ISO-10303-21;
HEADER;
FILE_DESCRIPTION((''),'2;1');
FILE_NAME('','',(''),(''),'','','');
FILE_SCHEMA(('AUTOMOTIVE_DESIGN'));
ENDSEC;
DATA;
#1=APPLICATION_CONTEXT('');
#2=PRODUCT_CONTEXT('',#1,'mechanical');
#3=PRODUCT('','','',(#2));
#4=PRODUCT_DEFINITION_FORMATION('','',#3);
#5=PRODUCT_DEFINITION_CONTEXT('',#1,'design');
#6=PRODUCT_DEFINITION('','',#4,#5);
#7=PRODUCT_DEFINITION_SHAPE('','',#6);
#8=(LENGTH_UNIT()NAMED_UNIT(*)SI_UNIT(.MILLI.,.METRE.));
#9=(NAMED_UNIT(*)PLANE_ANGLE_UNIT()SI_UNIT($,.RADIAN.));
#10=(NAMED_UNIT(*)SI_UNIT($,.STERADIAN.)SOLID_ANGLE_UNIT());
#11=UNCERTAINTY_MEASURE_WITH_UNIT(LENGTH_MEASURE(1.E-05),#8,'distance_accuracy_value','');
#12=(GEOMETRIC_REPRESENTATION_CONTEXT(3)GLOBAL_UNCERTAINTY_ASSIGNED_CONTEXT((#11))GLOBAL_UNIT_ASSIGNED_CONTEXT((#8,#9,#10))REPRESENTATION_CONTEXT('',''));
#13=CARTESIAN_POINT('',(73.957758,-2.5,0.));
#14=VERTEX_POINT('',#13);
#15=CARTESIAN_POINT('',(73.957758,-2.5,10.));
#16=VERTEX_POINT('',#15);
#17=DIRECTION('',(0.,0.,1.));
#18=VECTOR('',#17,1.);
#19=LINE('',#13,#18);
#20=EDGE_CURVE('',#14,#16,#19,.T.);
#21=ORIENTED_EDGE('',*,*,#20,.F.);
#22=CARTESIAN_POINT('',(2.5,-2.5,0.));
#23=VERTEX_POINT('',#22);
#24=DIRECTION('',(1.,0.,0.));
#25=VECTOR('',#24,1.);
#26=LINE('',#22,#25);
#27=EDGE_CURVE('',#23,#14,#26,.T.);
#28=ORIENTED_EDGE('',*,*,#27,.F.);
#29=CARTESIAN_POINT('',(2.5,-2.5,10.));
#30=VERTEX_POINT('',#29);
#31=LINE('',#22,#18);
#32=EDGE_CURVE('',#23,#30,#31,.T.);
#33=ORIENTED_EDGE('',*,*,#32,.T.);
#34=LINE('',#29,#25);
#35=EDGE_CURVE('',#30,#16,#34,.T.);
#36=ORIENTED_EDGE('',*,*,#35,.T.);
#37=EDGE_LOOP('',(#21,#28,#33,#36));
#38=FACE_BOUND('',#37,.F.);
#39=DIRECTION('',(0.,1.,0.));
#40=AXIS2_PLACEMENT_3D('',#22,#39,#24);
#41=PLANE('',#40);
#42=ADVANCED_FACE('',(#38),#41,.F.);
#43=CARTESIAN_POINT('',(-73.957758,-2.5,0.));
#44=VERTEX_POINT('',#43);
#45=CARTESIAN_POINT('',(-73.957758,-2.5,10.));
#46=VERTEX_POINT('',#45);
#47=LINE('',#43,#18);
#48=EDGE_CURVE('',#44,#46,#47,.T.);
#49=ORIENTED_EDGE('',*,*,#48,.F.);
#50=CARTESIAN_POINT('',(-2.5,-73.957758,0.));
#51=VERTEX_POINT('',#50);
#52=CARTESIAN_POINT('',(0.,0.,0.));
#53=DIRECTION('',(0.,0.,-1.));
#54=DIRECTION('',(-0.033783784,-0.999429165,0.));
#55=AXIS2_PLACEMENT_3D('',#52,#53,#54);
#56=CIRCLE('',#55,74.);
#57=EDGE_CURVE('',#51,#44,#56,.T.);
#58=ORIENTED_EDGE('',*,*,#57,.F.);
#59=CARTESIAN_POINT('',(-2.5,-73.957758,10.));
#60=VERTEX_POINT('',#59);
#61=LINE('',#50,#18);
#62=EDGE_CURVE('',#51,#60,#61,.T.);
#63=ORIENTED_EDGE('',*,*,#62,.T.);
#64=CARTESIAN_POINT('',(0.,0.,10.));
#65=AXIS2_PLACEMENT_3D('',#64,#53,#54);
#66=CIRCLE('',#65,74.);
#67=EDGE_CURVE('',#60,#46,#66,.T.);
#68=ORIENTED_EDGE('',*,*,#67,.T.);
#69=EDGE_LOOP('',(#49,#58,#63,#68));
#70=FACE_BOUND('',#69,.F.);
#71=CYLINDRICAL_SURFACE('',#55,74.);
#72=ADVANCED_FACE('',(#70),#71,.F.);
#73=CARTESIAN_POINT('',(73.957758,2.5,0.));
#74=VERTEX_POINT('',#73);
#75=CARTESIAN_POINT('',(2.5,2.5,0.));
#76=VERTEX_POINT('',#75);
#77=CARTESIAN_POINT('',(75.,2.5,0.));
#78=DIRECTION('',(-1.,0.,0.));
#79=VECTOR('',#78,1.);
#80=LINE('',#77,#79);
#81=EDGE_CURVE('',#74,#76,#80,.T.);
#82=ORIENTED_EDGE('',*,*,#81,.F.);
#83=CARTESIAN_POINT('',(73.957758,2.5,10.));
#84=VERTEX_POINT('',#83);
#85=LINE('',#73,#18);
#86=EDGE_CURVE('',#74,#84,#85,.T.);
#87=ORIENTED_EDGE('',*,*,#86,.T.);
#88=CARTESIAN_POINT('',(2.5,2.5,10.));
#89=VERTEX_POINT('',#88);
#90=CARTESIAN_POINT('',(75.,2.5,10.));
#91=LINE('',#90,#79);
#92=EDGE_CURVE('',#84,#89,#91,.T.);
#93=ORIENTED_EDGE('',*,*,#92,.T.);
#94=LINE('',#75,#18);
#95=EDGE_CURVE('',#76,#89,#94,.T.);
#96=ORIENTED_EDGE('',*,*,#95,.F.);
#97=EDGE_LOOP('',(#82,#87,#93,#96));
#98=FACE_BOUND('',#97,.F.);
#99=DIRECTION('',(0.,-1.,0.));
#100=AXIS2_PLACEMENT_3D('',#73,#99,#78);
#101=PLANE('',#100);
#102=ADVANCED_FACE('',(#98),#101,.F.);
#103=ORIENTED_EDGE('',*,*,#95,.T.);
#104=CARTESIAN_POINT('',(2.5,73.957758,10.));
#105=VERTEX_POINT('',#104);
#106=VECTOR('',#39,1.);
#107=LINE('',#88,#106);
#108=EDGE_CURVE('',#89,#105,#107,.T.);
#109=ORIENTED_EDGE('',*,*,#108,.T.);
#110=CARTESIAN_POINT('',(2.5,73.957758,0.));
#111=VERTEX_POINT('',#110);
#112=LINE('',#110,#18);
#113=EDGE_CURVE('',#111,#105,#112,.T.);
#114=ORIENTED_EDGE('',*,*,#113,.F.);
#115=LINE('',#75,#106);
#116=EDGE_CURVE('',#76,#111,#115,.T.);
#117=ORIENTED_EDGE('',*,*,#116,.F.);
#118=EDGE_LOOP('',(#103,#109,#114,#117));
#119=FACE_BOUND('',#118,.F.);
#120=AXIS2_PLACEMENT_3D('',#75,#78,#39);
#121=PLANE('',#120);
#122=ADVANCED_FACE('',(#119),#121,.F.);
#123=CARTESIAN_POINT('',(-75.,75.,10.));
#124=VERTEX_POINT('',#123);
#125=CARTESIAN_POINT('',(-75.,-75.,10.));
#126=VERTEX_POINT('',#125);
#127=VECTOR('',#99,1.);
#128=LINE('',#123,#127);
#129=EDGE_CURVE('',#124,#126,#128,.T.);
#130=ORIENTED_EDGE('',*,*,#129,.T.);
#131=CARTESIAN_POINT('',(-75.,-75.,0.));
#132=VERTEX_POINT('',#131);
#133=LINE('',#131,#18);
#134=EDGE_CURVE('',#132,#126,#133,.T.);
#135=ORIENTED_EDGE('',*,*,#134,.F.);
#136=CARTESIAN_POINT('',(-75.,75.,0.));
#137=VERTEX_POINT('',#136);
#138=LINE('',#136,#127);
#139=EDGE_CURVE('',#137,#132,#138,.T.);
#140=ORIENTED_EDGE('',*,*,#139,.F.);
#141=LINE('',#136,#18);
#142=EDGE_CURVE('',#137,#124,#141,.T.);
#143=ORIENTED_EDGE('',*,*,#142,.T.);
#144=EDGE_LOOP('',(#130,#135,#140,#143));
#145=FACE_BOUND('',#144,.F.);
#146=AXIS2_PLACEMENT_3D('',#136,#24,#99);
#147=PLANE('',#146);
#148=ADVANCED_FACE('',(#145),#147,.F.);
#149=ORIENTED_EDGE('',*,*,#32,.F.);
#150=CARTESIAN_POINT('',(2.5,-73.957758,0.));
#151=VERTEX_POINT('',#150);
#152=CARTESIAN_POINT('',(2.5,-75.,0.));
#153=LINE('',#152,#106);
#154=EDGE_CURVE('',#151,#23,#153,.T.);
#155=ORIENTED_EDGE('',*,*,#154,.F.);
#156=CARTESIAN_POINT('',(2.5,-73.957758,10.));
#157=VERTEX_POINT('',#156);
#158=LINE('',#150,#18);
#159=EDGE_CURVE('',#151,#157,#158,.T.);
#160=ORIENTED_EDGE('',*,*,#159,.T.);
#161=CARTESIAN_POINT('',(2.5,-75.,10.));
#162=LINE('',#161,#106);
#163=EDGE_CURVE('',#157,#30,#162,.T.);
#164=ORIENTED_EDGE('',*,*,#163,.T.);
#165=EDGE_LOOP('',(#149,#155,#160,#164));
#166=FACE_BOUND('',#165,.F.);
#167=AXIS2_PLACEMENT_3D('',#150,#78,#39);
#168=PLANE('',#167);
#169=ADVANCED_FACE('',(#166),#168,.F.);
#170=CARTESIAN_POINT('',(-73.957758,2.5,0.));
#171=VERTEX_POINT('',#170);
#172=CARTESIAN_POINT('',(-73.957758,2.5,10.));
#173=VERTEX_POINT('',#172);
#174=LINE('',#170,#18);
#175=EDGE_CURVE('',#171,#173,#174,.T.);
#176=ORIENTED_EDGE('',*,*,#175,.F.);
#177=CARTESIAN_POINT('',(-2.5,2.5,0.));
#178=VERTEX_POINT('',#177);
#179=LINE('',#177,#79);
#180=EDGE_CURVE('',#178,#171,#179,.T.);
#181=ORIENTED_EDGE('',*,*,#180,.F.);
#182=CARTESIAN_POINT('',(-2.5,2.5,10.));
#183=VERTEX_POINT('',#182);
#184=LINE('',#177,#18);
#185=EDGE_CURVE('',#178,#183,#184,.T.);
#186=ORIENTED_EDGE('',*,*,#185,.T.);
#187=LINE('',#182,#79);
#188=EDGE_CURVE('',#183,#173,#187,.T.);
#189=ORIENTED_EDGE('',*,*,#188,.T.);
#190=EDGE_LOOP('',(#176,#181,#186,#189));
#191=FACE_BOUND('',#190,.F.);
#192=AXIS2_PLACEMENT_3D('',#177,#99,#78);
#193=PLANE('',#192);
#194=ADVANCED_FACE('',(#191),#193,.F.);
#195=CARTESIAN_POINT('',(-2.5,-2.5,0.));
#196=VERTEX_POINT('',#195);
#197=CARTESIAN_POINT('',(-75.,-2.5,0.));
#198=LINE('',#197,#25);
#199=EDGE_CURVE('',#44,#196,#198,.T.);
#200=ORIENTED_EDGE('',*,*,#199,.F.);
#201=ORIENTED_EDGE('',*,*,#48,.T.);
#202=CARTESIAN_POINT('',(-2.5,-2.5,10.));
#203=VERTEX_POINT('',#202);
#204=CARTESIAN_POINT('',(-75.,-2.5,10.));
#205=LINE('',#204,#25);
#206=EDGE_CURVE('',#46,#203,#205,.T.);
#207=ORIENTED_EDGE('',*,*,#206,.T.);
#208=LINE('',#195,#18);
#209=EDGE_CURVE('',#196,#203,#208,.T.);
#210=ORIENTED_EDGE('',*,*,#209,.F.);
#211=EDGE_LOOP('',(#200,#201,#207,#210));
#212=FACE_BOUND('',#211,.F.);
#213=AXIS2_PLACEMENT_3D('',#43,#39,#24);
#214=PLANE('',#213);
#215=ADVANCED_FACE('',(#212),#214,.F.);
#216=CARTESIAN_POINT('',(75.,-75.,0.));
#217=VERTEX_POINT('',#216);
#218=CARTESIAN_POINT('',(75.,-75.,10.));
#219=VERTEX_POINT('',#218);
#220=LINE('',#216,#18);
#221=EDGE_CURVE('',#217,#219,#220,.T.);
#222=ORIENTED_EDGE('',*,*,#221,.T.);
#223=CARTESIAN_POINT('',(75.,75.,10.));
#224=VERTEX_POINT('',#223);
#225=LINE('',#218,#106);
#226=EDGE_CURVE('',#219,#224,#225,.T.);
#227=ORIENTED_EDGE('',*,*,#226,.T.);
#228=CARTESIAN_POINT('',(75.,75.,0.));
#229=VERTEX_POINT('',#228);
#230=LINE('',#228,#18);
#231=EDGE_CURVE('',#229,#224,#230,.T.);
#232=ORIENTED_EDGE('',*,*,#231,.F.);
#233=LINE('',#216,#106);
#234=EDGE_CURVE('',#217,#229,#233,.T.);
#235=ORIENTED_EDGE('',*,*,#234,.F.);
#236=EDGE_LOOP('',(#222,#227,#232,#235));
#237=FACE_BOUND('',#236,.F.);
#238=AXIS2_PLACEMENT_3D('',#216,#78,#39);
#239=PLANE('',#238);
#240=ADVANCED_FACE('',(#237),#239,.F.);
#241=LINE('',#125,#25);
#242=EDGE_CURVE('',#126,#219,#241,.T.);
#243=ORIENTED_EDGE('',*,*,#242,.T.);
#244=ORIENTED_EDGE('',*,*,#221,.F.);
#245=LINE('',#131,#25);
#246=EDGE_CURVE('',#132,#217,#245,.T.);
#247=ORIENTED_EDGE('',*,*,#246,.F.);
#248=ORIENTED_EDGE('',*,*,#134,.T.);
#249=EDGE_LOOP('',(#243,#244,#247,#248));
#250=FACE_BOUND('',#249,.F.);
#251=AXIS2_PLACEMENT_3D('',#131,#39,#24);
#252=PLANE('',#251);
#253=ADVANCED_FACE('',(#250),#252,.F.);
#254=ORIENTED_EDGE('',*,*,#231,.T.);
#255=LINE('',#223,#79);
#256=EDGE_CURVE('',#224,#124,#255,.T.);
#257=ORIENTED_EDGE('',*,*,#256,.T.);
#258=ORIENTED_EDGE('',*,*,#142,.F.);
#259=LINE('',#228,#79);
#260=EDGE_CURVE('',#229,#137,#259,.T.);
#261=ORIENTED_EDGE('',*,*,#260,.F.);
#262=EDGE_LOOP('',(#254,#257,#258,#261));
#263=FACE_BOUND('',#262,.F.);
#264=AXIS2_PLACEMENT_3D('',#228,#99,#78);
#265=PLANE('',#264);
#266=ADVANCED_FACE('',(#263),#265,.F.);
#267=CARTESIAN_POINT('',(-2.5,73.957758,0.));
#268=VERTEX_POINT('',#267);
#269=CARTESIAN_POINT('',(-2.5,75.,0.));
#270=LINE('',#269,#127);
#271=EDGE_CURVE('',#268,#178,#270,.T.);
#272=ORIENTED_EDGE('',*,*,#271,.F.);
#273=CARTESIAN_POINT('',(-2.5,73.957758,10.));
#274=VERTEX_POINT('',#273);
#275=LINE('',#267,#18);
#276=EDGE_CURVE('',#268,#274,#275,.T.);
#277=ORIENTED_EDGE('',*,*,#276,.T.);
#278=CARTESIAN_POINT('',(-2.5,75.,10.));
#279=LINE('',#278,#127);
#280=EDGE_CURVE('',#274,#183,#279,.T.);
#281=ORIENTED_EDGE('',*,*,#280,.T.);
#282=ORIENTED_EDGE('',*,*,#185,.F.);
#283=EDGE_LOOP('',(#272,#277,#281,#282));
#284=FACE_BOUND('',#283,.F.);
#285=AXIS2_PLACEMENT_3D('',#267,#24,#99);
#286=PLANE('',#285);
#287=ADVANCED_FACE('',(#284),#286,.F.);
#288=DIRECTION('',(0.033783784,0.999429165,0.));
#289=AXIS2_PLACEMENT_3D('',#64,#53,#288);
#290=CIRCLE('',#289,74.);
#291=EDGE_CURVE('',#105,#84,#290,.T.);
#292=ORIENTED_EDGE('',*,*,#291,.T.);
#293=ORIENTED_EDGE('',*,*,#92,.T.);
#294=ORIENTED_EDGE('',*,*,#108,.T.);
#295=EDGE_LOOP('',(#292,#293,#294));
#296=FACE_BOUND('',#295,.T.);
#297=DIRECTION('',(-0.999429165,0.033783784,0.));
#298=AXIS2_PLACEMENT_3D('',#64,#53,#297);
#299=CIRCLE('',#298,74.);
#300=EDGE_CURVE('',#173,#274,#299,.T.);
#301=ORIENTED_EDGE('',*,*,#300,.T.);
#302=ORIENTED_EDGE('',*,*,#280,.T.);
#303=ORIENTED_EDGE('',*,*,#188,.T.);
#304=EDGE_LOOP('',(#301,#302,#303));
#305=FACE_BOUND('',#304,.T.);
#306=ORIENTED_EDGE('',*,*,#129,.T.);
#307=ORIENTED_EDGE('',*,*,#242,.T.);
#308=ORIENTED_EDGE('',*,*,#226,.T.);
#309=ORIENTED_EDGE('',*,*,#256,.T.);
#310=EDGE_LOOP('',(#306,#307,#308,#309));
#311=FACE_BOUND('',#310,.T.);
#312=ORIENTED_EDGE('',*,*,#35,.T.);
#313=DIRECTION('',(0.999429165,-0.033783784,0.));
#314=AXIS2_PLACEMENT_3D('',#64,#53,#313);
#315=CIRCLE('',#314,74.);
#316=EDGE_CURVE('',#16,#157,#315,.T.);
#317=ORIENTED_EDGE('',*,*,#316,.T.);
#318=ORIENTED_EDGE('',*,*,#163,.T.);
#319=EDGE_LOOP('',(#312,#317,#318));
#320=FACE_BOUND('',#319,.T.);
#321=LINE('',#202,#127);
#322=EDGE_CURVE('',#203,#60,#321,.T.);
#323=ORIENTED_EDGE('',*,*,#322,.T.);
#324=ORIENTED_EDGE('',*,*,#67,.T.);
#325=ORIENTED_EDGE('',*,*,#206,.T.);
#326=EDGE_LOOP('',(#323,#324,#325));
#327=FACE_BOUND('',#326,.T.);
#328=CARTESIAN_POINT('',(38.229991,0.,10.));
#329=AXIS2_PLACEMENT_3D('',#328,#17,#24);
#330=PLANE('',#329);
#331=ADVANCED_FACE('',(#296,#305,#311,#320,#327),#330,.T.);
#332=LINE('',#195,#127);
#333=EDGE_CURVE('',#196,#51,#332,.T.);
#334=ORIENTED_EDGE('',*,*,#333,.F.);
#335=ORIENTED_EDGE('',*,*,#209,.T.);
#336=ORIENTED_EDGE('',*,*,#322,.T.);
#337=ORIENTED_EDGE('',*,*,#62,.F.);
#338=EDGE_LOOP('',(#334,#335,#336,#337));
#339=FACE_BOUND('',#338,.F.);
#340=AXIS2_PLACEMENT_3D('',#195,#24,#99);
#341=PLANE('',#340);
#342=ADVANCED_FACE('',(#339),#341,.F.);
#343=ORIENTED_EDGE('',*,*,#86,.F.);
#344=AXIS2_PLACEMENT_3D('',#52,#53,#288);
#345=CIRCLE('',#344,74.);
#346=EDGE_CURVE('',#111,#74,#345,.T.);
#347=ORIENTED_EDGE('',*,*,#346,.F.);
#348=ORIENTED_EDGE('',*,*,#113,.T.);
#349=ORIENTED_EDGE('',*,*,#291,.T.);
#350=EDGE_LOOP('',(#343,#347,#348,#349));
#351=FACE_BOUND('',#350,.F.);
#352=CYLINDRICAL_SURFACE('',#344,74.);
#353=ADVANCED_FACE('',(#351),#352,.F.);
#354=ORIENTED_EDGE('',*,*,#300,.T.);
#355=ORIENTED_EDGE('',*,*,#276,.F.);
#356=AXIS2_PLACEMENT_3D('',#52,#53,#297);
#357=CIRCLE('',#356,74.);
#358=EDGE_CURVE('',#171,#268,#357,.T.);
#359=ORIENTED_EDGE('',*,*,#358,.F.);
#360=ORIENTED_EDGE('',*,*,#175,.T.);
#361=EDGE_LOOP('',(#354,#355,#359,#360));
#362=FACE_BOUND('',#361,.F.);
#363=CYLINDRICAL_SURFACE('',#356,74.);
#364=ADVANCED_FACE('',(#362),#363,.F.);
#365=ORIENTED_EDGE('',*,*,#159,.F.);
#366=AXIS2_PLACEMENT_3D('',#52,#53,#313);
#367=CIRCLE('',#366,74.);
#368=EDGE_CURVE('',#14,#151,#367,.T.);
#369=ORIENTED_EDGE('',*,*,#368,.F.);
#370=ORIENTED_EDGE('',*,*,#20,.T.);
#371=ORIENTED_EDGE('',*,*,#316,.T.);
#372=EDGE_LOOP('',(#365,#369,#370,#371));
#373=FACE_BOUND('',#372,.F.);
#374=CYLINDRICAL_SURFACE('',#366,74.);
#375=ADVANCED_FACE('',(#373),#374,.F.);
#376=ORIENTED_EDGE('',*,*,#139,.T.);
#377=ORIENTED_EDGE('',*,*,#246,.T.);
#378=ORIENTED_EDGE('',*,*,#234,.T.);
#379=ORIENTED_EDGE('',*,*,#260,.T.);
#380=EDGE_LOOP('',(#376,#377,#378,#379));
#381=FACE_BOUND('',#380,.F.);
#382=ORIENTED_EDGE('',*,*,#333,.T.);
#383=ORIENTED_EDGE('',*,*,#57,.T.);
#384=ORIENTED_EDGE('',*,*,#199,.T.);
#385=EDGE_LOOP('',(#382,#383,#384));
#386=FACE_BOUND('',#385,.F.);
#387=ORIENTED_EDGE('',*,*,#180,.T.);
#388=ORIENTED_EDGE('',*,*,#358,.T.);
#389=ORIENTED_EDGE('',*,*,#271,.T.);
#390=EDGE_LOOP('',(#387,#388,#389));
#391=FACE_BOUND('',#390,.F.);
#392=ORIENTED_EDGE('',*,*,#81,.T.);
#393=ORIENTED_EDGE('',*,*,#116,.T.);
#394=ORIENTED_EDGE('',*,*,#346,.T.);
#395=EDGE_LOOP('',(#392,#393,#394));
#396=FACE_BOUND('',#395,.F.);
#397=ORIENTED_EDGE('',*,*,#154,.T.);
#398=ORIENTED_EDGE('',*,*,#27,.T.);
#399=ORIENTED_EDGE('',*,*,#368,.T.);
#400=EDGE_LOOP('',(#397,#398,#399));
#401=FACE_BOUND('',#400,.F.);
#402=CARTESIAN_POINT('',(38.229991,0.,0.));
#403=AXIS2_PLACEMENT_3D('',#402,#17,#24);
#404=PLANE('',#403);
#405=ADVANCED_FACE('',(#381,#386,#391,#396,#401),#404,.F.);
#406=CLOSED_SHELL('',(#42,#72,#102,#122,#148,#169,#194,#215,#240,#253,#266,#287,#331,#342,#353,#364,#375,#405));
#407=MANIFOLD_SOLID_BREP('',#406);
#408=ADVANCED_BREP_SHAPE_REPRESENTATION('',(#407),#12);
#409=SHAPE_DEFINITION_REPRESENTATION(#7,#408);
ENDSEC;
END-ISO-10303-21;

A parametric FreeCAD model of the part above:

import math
import FreeCAD as App
import Part
import Sketcher
from FreeCAD import Vector

doc = App.newDocument("Part")
body = doc.addObject("PartDesign::Body", "Body")

sketch1 = body.newObject("Sketcher::SketchObject", "Sketch")
sketch1.AttachmentSupport = (doc.getObject("XY_Plane"), [""])
sketch1.MapMode = "FlatFace"
sketch1.addGeometry(Part.LineSegment(Vector(-75, 75, 0), Vector(-75, -75, 0)), False)
sketch1.addGeometry(Part.LineSegment(Vector(-75, -75, 0), Vector(75, -75, 0)), False)
sketch1.addGeometry(Part.LineSegment(Vector(75, -75, 0), Vector(75, 75, 0)), False)
sketch1.addGeometry(Part.LineSegment(Vector(75, 75, 0), Vector(-75, 75, 0)), False)
sketch1.addGeometry(Part.LineSegment(Vector(2, -2, 0), Vector(74, -2, 0)), False)
sketch1.addGeometry(Part.ArcOfCircle(Part.Circle(Vector(0, 0, 0), Vector(0, 0, 1), 74), math.radians(-88), math.radians(-2)), False)
sketch1.addGeometry(Part.LineSegment(Vector(2, -74, 0), Vector(2, -2, 0)), False)
sketch1.addGeometry(Part.LineSegment(Vector(74, 2, 0), Vector(2, 2, 0)), False)
sketch1.addGeometry(Part.LineSegment(Vector(2, 2, 0), Vector(2, 74, 0)), False)
sketch1.addGeometry(Part.ArcOfCircle(Part.Circle(Vector(0, 0, 0), Vector(0, 0, 1), 74), math.radians(2), math.radians(88)), False)
sketch1.addGeometry(Part.LineSegment(Vector(-2, 74, 0), Vector(-2, 2, 0)), False)
sketch1.addGeometry(Part.LineSegment(Vector(-2, 2, 0), Vector(-74, 2, 0)), False)
sketch1.addGeometry(Part.ArcOfCircle(Part.Circle(Vector(0, 0, 0), Vector(0, 0, 1), 74), math.radians(92), math.radians(178)), False)
sketch1.addGeometry(Part.LineSegment(Vector(-74, -2, 0), Vector(-2, -2, 0)), False)
sketch1.addGeometry(Part.LineSegment(Vector(-2, -2, 0), Vector(-2, -74, 0)), False)
sketch1.addGeometry(Part.ArcOfCircle(Part.Circle(Vector(0, 0, 0), Vector(0, 0, 1), 74), math.radians(-178), math.radians(-92)), False)
sketch1.addConstraint(Sketcher.Constraint("Coincident", 0, 2, 1, 1))
sketch1.addConstraint(Sketcher.Constraint("Coincident", 1, 2, 2, 1))
sketch1.addConstraint(Sketcher.Constraint("Coincident", 2, 2, 3, 1))
sketch1.addConstraint(Sketcher.Constraint("Coincident", 3, 2, 0, 1))
sketch1.addConstraint(Sketcher.Constraint("Coincident", 4, 2, 5, 2))
sketch1.addConstraint(Sketcher.Constraint("Coincident", 5, 1, 6, 1))
sketch1.addConstraint(Sketcher.Constraint("Coincident", 6, 2, 4, 1))
sketch1.addConstraint(Sketcher.Constraint("Coincident", 7, 2, 8, 1))
sketch1.addConstraint(Sketcher.Constraint("Coincident", 8, 2, 9, 2))
sketch1.addConstraint(Sketcher.Constraint("Coincident", 9, 1, 7, 1))
sketch1.addConstraint(Sketcher.Constraint("Coincident", 10, 2, 11, 1))
sketch1.addConstraint(Sketcher.Constraint("Coincident", 11, 2, 12, 2))
sketch1.addConstraint(Sketcher.Constraint("Coincident", 12, 1, 10, 1))
sketch1.addConstraint(Sketcher.Constraint("Coincident", 13, 2, 14, 1))
sketch1.addConstraint(Sketcher.Constraint("Coincident", 14, 2, 15, 2))
sketch1.addConstraint(Sketcher.Constraint("Coincident", 15, 1, 13, 1))
sketch1.addConstraint(Sketcher.Constraint("Vertical", 0))
sketch1.addConstraint(Sketcher.Constraint("Horizontal", 1))
sketch1.addConstraint(Sketcher.Constraint("Vertical", 2))
sketch1.addConstraint(Sketcher.Constraint("Horizontal", 3))
sketch1.addConstraint(Sketcher.Constraint("Horizontal", 4))
sketch1.addConstraint(Sketcher.Constraint("Vertical", 6))
sketch1.addConstraint(Sketcher.Constraint("Horizontal", 7))
sketch1.addConstraint(Sketcher.Constraint("Vertical", 8))
sketch1.addConstraint(Sketcher.Constraint("Vertical", 10))
sketch1.addConstraint(Sketcher.Constraint("Horizontal", 11))
sketch1.addConstraint(Sketcher.Constraint("Horizontal", 13))
sketch1.addConstraint(Sketcher.Constraint("Vertical", 14))
sketch1.addConstraint(Sketcher.Constraint("Coincident", 5, 3, -1, 1))
sketch1.addConstraint(Sketcher.Constraint("Coincident", 9, 3, -1, 1))
sketch1.addConstraint(Sketcher.Constraint("Coincident", 12, 3, -1, 1))
sketch1.addConstraint(Sketcher.Constraint("Coincident", 15, 3, -1, 1))
sketch1.addConstraint(Sketcher.Constraint("Equal", 5, 9))
sketch1.addConstraint(Sketcher.Constraint("Equal", 9, 12))
sketch1.addConstraint(Sketcher.Constraint("Equal", 12, 15))
sketch1.addConstraint(Sketcher.Constraint("Symmetric", 0, 2, 2, 2, -1, 1))
sketch1.addConstraint(Sketcher.Constraint("Symmetric", 6, 2, 10, 2, -1, 1))
sketch1.addConstraint(Sketcher.Constraint("Symmetric", 7, 2, 13, 2, -1, 1))
sketch1.addConstraint(Sketcher.Constraint("Symmetric", 7, 2, 10, 2, -2))
sketch1.addConstraint(Sketcher.Constraint("Equal", 3, 0))
sketch1.addConstraint(Sketcher.Constraint("Equal", 13, 6))
sketch1.addConstraint(Sketcher.Constraint("Radius", 5, 74.0))
sketch1.addConstraint(Sketcher.Constraint("DistanceX", 1, 1, 1, 2, 150.0))
sketch1.addConstraint(Sketcher.Constraint("DistanceY", 6, 2, 7, 2, 5.0))
pad1 = body.newObject("PartDesign::Pad", "Pad")
pad1.Profile = sketch1
pad1.Length = 10

doc.recompute()
